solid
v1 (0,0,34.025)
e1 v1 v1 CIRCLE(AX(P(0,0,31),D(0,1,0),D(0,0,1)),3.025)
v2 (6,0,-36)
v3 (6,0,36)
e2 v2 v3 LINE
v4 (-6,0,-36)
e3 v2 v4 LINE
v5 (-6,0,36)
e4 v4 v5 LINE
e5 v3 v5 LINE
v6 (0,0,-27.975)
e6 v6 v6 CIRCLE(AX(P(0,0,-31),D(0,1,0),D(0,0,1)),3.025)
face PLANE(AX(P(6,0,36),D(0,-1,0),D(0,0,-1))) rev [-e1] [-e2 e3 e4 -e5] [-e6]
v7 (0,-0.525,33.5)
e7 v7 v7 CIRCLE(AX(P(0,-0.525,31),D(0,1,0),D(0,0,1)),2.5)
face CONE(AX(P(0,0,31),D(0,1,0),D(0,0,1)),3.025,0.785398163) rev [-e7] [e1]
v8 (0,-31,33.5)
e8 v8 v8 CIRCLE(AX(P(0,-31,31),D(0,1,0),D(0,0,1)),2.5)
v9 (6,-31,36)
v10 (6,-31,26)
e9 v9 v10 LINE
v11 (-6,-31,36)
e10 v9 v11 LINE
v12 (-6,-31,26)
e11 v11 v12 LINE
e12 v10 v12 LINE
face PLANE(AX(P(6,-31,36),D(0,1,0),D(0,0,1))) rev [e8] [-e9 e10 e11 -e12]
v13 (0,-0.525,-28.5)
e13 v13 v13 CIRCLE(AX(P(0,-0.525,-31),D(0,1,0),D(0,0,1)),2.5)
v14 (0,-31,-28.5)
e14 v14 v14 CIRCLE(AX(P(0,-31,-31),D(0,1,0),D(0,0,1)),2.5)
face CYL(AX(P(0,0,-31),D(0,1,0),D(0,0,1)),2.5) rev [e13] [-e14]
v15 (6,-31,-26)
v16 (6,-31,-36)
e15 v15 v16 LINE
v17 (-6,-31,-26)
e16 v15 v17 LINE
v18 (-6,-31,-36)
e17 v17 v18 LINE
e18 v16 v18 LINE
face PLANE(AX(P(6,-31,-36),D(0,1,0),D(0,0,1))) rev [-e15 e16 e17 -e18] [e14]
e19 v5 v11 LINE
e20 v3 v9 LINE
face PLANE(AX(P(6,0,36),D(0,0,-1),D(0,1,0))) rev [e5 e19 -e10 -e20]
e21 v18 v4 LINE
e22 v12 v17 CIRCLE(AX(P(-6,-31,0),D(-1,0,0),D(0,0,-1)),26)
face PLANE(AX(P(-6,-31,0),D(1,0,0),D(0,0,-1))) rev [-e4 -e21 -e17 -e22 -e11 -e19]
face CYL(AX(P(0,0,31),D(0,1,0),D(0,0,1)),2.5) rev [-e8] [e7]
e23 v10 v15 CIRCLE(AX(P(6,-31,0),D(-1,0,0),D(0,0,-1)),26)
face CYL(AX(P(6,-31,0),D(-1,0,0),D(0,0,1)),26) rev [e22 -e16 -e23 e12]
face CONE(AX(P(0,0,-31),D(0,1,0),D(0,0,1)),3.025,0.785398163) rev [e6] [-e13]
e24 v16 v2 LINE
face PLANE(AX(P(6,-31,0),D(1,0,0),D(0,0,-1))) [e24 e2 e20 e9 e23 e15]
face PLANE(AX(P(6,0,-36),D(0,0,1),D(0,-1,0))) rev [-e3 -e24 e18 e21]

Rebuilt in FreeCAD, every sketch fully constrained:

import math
import FreeCAD as App
import Part
import Sketcher

doc = App.newDocument("Part")
body = doc.addObject("PartDesign::Body", "Body")

# Sketch on YZ plane
sketch1 = body.newObject("Sketcher::SketchObject", "Sketch")
sketch1.AttachmentSupport = (doc.getObject("YZ_Plane"), [""])
sketch1.MapMode = "FlatFace"
sketch1.addGeometry([
    Part.LineSegment(App.Vector(0, -36, 0), App.Vector(0, 36, 0)),  # 0
    Part.LineSegment(App.Vector(0, 36, 0), App.Vector(-31, 36, 0)),  # 1
    Part.LineSegment(App.Vector(-31, 36, 0), App.Vector(-31, 26, 0)),  # 2
    Part.ArcOfCircle(Part.Circle(App.Vector(-31, 0, 0), App.Vector(0, 0, 1), 26), math.radians(-90), math.radians(90)),  # 3
    Part.LineSegment(App.Vector(-31, -26, 0), App.Vector(-31, -36, 0)),  # 4
    Part.LineSegment(App.Vector(-31, -36, 0), App.Vector(0, -36, 0)),  # 5
], False)
sketch1.addConstraint([
    Sketcher.Constraint("Coincident", 0, 2, 1, 1),
    Sketcher.Constraint("Coincident", 1, 2, 2, 1),
    Sketcher.Constraint("Coincident", 2, 2, 3, 2),
    Sketcher.Constraint("Coincident", 3, 1, 4, 1),
    Sketcher.Constraint("Coincident", 4, 2, 5, 1),
    Sketcher.Constraint("Coincident", 5, 2, 0, 1),
    Sketcher.Constraint("Vertical", 0),
    Sketcher.Constraint("Horizontal", 1),
    Sketcher.Constraint("Vertical", 2),
    Sketcher.Constraint("Vertical", 4),
    Sketcher.Constraint("Horizontal", 5),
    Sketcher.Constraint("Symmetric", 0, 2, 5, 2, -1, 1),
    Sketcher.Constraint("Symmetric", 2, 2, 3, 1, -1),
    Sketcher.Constraint("Vertical", 3, 3, 1, 2),
    Sketcher.Constraint("Radius", 3, 26.0),
    Sketcher.Constraint("DistanceX", 1, 2, 1, 1, 31.0),
    Sketcher.Constraint("DistanceY", 0, 1, 0, 2, 72.0),
])
pad1 = body.newObject("PartDesign::Pad", "Pad")
pad1.Profile = sketch1
pad1.Length = 12
pad1.Midplane = True

# Sketch on XZ plane
sketch2 = body.newObject("Sketcher::SketchObject", "Sketch001")
sketch2.AttachmentSupport = (doc.getObject("XZ_Plane"), [""])
sketch2.MapMode = "FlatFace"
sketch2.addGeometry([
    Part.Circle(App.Vector(0, 31, 0), App.Vector(0, 0, 1), 2.5),
    Part.Circle(App.Vector(0, -31, 0), App.Vector(0, 0, 1), 2.5),
], False)
sketch2.addConstraint([
    Sketcher.Constraint("Equal", 0, 1),
    Sketcher.Constraint("Symmetric", 0, 3, 1, 3, -1, 1),
    Sketcher.Constraint("PointOnObject", 0, 3, -2),
    Sketcher.Constraint("Diameter", 0, 5.0),
    Sketcher.Constraint("DistanceY", -1, 1, 0, 3, 31.0),
])
doc.recompute()
hole = body.newObject("PartDesign::Hole", "Hole")
hole.Profile = sketch2
hole.ThreadType = "None"
hole.Diameter = 5
hole.DepthType = "ThroughAll"
hole.HoleCutType = "Countersink"
hole.HoleCutDiameter = 6.05
hole.HoleCutCountersinkAngle = 90
hole.Reversed = True

doc.recompute()
